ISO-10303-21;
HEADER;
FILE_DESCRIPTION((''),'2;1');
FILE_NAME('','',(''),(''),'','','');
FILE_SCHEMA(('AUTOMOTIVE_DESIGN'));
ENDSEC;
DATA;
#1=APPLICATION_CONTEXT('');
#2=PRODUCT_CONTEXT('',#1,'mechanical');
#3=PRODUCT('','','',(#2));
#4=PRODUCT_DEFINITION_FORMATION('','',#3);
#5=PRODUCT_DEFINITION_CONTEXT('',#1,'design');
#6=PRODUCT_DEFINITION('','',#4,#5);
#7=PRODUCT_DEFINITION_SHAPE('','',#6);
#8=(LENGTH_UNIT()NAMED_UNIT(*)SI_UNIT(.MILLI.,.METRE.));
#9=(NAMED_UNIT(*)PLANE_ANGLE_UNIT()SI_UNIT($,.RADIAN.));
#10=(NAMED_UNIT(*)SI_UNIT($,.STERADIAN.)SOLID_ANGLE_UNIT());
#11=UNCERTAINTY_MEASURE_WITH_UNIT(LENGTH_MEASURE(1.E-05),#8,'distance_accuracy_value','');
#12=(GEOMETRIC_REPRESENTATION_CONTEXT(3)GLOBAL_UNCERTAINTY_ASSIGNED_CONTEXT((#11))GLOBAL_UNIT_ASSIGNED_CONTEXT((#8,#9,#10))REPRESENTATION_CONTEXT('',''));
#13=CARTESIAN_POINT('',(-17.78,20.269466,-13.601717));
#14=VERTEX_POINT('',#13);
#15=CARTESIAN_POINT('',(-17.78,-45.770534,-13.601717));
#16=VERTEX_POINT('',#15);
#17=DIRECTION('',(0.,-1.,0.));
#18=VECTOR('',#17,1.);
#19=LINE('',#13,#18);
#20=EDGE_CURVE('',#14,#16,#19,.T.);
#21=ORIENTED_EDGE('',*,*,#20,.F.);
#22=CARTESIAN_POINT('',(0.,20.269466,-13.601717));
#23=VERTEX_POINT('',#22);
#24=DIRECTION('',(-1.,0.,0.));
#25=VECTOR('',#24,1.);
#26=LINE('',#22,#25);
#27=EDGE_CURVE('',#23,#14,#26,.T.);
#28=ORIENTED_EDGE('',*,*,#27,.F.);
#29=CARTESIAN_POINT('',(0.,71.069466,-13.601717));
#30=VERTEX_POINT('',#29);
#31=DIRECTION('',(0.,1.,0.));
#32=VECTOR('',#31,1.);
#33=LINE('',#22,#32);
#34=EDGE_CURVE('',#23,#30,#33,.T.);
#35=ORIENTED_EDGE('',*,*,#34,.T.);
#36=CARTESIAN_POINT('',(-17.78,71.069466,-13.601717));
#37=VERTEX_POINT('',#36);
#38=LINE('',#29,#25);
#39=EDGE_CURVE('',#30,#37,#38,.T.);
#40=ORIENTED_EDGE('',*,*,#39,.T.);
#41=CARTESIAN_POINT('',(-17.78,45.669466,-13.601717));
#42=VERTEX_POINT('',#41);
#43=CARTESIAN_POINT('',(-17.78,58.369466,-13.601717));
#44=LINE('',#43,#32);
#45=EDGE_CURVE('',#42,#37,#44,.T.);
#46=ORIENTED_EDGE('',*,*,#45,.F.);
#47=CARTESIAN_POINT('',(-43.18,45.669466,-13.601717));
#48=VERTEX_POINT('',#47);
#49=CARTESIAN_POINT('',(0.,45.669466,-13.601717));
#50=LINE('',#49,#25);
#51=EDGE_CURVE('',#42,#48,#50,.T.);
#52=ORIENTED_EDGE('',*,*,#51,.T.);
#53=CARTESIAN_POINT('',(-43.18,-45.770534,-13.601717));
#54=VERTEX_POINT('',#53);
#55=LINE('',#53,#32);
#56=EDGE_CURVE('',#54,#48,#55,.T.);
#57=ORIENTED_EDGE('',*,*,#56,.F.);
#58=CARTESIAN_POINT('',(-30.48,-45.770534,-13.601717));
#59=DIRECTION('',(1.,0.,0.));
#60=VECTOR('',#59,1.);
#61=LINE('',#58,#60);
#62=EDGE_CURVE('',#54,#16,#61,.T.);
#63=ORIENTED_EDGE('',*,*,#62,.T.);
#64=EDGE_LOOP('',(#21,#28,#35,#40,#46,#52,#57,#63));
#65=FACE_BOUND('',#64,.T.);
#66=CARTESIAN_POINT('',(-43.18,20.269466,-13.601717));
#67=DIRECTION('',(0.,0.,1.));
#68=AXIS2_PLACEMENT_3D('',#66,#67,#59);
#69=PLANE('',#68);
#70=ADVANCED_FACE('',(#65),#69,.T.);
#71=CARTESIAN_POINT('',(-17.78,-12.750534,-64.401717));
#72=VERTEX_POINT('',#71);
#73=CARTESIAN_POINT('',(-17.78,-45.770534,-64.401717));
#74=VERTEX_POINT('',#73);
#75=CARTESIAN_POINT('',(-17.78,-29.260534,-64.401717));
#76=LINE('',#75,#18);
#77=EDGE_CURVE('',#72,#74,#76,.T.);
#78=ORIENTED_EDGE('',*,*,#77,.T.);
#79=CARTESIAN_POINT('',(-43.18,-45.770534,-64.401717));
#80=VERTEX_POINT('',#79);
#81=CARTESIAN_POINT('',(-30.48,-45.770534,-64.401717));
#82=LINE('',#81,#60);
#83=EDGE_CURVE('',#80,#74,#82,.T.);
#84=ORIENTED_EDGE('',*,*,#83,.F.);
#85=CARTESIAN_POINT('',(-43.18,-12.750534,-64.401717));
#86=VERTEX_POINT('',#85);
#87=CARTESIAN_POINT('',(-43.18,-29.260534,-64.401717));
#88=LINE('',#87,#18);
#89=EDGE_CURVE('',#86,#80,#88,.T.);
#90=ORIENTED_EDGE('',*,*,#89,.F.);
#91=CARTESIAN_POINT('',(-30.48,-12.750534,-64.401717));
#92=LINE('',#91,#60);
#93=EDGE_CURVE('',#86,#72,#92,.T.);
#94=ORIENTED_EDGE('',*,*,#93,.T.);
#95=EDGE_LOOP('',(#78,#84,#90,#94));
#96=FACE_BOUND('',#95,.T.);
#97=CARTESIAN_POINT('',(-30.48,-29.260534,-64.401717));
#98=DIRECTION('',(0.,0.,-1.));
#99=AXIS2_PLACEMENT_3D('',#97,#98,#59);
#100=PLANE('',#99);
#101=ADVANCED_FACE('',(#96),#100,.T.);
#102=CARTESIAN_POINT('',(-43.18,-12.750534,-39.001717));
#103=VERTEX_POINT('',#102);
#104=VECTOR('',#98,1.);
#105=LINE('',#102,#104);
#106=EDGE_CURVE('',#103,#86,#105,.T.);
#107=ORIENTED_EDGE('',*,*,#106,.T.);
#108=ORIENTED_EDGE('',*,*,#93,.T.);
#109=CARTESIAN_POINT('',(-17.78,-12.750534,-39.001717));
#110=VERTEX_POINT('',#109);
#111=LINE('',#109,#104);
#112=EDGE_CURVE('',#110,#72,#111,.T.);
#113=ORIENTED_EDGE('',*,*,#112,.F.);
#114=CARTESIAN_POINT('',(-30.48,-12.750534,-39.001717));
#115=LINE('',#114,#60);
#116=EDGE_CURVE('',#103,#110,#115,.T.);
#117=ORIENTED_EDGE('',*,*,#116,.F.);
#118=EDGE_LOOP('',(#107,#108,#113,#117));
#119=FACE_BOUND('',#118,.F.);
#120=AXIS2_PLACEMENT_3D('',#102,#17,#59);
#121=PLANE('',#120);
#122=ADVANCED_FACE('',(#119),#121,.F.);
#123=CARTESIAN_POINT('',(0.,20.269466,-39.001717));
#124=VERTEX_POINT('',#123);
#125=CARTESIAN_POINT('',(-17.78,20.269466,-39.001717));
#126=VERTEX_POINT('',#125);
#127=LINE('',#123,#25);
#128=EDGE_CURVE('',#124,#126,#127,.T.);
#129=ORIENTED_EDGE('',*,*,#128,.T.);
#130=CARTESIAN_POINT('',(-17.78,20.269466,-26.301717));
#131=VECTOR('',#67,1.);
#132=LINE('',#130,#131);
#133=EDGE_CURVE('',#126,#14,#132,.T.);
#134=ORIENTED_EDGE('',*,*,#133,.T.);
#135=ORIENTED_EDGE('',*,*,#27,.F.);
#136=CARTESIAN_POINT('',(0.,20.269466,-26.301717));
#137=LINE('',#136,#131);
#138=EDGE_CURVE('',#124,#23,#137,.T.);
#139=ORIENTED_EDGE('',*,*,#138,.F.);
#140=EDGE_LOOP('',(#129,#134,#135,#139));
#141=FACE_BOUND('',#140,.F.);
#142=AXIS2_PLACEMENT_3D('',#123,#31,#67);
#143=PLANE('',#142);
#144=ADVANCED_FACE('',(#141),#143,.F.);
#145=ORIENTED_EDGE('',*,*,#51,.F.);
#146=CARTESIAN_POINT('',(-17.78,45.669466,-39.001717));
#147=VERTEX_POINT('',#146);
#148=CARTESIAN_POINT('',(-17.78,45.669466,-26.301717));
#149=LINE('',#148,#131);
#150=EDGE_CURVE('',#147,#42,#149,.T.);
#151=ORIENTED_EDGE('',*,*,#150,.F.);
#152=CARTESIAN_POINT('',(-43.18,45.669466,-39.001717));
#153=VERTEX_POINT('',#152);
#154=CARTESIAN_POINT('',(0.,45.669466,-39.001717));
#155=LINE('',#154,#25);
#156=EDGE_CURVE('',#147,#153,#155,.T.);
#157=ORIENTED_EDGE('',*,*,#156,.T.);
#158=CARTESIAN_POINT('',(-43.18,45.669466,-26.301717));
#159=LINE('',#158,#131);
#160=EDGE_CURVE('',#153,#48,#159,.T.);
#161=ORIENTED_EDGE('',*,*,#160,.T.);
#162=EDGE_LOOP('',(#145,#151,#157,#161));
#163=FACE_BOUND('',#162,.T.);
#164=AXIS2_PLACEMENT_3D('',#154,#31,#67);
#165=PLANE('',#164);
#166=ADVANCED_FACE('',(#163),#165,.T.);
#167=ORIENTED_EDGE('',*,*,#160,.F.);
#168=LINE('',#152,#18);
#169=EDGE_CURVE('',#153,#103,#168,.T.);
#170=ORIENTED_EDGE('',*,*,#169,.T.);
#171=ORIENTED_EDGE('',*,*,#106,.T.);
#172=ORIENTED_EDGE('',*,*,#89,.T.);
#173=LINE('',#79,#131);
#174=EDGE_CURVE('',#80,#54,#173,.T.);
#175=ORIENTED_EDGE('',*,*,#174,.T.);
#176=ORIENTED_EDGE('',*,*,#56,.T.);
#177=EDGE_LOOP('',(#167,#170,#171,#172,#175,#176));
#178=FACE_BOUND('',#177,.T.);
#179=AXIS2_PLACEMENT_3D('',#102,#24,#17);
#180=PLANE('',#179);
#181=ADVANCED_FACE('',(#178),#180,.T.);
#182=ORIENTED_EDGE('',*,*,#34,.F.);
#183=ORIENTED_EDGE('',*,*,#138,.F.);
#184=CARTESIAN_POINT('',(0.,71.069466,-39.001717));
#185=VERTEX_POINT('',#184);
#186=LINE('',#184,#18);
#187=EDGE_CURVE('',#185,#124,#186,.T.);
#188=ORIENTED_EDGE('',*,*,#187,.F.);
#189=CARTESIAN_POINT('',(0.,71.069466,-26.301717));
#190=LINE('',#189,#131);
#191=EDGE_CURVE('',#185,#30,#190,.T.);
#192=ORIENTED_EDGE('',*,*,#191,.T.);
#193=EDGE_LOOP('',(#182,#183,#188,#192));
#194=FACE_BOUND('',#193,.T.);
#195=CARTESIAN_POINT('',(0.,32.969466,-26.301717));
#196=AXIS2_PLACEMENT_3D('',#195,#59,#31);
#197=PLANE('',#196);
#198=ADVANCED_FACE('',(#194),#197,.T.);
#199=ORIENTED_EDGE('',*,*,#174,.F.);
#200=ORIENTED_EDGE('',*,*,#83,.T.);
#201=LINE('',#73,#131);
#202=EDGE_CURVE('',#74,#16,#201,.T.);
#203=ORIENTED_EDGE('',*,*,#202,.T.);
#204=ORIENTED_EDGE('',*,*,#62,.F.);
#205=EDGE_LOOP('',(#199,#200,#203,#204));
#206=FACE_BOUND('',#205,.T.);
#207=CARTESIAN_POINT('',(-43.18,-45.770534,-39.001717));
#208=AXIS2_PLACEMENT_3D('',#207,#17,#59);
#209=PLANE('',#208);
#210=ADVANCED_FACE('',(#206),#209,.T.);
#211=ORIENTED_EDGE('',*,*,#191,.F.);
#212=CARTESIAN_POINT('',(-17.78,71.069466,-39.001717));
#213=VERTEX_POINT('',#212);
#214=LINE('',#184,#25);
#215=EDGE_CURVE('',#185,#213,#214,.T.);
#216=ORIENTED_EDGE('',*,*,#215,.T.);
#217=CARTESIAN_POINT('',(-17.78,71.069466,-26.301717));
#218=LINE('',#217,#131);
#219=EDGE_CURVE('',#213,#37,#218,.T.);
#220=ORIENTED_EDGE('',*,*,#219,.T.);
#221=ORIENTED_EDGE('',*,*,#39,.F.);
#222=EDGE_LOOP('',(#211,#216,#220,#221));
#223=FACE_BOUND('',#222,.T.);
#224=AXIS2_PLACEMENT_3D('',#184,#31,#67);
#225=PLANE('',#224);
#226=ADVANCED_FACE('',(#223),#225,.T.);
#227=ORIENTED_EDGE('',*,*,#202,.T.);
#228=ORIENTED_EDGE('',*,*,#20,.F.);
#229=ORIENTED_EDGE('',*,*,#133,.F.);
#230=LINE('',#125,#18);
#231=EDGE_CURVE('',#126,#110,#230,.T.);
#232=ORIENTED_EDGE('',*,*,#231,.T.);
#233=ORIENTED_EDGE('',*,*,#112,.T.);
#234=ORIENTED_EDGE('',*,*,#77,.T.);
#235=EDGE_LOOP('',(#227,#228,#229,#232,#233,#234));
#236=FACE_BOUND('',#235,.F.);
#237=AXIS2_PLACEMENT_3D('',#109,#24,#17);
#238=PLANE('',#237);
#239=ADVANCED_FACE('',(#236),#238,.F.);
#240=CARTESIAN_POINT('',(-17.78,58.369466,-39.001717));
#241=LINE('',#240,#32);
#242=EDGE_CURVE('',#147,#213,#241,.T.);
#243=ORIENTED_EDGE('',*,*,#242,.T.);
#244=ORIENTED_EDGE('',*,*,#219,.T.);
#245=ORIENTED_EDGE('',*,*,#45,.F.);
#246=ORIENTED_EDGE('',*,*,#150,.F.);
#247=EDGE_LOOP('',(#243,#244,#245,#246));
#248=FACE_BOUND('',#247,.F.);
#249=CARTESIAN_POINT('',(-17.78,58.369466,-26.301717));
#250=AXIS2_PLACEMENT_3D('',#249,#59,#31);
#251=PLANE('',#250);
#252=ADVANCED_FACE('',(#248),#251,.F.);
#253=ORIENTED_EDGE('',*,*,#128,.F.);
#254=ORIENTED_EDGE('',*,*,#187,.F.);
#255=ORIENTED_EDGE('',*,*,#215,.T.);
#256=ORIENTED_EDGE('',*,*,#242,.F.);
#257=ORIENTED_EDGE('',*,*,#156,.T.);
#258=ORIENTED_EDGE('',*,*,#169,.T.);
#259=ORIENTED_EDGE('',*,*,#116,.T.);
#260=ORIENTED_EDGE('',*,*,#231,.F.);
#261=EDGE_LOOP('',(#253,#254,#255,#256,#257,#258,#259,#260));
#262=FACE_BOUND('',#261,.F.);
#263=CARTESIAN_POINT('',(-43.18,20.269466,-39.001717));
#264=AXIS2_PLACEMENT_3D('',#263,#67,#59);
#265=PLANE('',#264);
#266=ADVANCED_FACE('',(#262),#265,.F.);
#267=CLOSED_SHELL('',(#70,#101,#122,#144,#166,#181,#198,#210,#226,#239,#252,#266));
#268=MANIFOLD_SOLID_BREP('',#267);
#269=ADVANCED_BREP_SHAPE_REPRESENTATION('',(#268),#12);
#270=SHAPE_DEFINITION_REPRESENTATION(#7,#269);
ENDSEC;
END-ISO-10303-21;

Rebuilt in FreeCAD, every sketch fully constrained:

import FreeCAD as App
import Part
import Sketcher
Q = App.Units.Quantity


def add_polygon(sketch, points):
    """Adds a closed chain of lines whose ends are joined by coincident constraints."""
    first, n = sketch.GeometryCount, len(points)
    for a, b in zip(points, points[1:] + points[:1]):
        sketch.addGeometry(Part.LineSegment(App.Vector(*a, 0), App.Vector(*b, 0)), False)
    for i in range(n):
        sketch.addConstraint(Sketcher.Constraint("Coincident", first + i, 2, first + (i + 1) % n, 1))

doc = App.newDocument("Part")
body = doc.addObject("PartDesign::Body", "Body")

# Sketch on YZ plane
sketch1 = body.newObject("Sketcher::SketchObject", "Sketch")
sketch1.AttachmentSupport = (doc.getObject("YZ_Plane"), [""])
sketch1.MapMode = "FlatFace"
add_polygon(sketch1, [(46, -14), (46, -39), (71, -39), (71, -14)])  # lines 0-3
sketch1.addConstraint(Sketcher.Constraint("Vertical", 0))
sketch1.addConstraint(Sketcher.Constraint("Horizontal", 1))
sketch1.addConstraint(Sketcher.Constraint("Vertical", 2))
sketch1.addConstraint(Sketcher.Constraint("Horizontal", 3))
sketch1.addConstraint(Sketcher.Constraint("Equal", 3, 0))
sketch1.addConstraint(Sketcher.Constraint("DistanceX", 1, 1, 1, 2, Q("1 in")))
sketch1.addConstraint(Sketcher.Constraint("DistanceX", -1, 1, 0, 2, 45.669466))
sketch1.addConstraint(Sketcher.Constraint("DistanceY", 0, 2, -1, 1, 39.001717))
pad1 = body.newObject("PartDesign::Pad", "Pad")
pad1.Profile = sketch1
pad1.Length = Q("0.7 in")
pad1.Reversed = True

# Sketch on YZ plane
sketch2 = body.newObject("Sketcher::SketchObject", "Sketch001")
sketch2.AttachmentSupport = (doc.getObject("YZ_Plane"), [""])
sketch2.MapMode = "FlatFace"
add_polygon(sketch2, [(20, -14), (20, -39), (46, -39), (46, -14)])  # lines 0-3
sketch2.addConstraint(Sketcher.Constraint("Vertical", 0))
sketch2.addConstraint(Sketcher.Constraint("Horizontal", 1))
sketch2.addConstraint(Sketcher.Constraint("Vertical", 2))
sketch2.addConstraint(Sketcher.Constraint("Horizontal", 3))
sketch2.addConstraint(Sketcher.Constraint("Equal", 3, 0))
sketch2.addConstraint(Sketcher.Constraint("DistanceX", 1, 1, 1, 2, Q("1 in")))
sketch2.addConstraint(Sketcher.Constraint("DistanceX", -1, 1, 0, 2, 20.269466))
sketch2.addConstraint(Sketcher.Constraint("DistanceY", 0, 2, -1, 1, 39.001717))
pad2 = body.newObject("PartDesign::Pad", "Pad001")
pad2.Profile = sketch2
pad2.Length = Q("1.7 in")
pad2.Reversed = True

# Sketch on XZ plane
sketch3 = body.newObject("Sketcher::SketchObject", "Sketch002")
sketch3.AttachmentSupport = (doc.getObject("XZ_Plane"), [""])
sketch3.MapMode = "FlatFace"
sketch3.AttachmentOffset = App.Placement(App.Vector(0, 0, -20.269466), App.Rotation())
add_polygon(sketch3, [(-43, -14), (-43, -39), (-18, -39), (-18, -14)])  # lines 0-3
sketch3.addConstraint(Sketcher.Constraint("Vertical", 0))
sketch3.addConstraint(Sketcher.Constraint("Horizontal", 1))
sketch3.addConstraint(Sketcher.Constraint("Vertical", 2))
sketch3.addConstraint(Sketcher.Constraint("Horizontal", 3))
sketch3.addConstraint(Sketcher.Constraint("Equal", 3, 0))
sketch3.addConstraint(Sketcher.Constraint("DistanceX", 1, 1, 1, 2, Q("1 in")))
sketch3.addConstraint(Sketcher.Constraint("DistanceX", 0, 2, -1, 1, Q("1.7 in")))
sketch3.addConstraint(Sketcher.Constraint("DistanceY", 0, 2, -1, 1, 39.001717))
pad3 = body.newObject("PartDesign::Pad", "Pad002")
pad3.Profile = sketch3
pad3.Length = Q("2.6 in")

# Sketch on XY plane
sketch4 = body.newObject("Sketcher::SketchObject", "Sketch003")
sketch4.AttachmentSupport = (doc.getObject("XY_Plane"), [""])
sketch4.MapMode = "FlatFace"
sketch4.AttachmentOffset = App.Placement(App.Vector(0, 0, -39.001717), App.Rotation())
add_polygon(sketch4, [(-43, -46), (-43, -13), (-18, -13), (-18, -46)])  # lines 0-3
sketch4.addConstraint(Sketcher.Constraint("Vertical", 0))
sketch4.addConstraint(Sketcher.Constraint("Horizontal", 1))
sketch4.addConstraint(Sketcher.Constraint("Vertical", 2))
sketch4.addConstraint(Sketcher.Constraint("Horizontal", 3))
sketch4.addConstraint(Sketcher.Constraint("DistanceX", 1, 1, 1, 2, Q("1 in")))
sketch4.addConstraint(Sketcher.Constraint("DistanceY", 0, 1, 0, 2, Q("1.3 in")))
sketch4.addConstraint(Sketcher.Constraint("DistanceX", 0, 2, -1, 1, Q("1.7 in")))
sketch4.addConstraint(Sketcher.Constraint("DistanceY", 0, 2, -1, 1, 12.750534))
pad4 = body.newObject("PartDesign::Pad", "Pad003")
pad4.Profile = sketch4
pad4.Length = Q("1 in")
pad4.Reversed = True

doc.recompute()
